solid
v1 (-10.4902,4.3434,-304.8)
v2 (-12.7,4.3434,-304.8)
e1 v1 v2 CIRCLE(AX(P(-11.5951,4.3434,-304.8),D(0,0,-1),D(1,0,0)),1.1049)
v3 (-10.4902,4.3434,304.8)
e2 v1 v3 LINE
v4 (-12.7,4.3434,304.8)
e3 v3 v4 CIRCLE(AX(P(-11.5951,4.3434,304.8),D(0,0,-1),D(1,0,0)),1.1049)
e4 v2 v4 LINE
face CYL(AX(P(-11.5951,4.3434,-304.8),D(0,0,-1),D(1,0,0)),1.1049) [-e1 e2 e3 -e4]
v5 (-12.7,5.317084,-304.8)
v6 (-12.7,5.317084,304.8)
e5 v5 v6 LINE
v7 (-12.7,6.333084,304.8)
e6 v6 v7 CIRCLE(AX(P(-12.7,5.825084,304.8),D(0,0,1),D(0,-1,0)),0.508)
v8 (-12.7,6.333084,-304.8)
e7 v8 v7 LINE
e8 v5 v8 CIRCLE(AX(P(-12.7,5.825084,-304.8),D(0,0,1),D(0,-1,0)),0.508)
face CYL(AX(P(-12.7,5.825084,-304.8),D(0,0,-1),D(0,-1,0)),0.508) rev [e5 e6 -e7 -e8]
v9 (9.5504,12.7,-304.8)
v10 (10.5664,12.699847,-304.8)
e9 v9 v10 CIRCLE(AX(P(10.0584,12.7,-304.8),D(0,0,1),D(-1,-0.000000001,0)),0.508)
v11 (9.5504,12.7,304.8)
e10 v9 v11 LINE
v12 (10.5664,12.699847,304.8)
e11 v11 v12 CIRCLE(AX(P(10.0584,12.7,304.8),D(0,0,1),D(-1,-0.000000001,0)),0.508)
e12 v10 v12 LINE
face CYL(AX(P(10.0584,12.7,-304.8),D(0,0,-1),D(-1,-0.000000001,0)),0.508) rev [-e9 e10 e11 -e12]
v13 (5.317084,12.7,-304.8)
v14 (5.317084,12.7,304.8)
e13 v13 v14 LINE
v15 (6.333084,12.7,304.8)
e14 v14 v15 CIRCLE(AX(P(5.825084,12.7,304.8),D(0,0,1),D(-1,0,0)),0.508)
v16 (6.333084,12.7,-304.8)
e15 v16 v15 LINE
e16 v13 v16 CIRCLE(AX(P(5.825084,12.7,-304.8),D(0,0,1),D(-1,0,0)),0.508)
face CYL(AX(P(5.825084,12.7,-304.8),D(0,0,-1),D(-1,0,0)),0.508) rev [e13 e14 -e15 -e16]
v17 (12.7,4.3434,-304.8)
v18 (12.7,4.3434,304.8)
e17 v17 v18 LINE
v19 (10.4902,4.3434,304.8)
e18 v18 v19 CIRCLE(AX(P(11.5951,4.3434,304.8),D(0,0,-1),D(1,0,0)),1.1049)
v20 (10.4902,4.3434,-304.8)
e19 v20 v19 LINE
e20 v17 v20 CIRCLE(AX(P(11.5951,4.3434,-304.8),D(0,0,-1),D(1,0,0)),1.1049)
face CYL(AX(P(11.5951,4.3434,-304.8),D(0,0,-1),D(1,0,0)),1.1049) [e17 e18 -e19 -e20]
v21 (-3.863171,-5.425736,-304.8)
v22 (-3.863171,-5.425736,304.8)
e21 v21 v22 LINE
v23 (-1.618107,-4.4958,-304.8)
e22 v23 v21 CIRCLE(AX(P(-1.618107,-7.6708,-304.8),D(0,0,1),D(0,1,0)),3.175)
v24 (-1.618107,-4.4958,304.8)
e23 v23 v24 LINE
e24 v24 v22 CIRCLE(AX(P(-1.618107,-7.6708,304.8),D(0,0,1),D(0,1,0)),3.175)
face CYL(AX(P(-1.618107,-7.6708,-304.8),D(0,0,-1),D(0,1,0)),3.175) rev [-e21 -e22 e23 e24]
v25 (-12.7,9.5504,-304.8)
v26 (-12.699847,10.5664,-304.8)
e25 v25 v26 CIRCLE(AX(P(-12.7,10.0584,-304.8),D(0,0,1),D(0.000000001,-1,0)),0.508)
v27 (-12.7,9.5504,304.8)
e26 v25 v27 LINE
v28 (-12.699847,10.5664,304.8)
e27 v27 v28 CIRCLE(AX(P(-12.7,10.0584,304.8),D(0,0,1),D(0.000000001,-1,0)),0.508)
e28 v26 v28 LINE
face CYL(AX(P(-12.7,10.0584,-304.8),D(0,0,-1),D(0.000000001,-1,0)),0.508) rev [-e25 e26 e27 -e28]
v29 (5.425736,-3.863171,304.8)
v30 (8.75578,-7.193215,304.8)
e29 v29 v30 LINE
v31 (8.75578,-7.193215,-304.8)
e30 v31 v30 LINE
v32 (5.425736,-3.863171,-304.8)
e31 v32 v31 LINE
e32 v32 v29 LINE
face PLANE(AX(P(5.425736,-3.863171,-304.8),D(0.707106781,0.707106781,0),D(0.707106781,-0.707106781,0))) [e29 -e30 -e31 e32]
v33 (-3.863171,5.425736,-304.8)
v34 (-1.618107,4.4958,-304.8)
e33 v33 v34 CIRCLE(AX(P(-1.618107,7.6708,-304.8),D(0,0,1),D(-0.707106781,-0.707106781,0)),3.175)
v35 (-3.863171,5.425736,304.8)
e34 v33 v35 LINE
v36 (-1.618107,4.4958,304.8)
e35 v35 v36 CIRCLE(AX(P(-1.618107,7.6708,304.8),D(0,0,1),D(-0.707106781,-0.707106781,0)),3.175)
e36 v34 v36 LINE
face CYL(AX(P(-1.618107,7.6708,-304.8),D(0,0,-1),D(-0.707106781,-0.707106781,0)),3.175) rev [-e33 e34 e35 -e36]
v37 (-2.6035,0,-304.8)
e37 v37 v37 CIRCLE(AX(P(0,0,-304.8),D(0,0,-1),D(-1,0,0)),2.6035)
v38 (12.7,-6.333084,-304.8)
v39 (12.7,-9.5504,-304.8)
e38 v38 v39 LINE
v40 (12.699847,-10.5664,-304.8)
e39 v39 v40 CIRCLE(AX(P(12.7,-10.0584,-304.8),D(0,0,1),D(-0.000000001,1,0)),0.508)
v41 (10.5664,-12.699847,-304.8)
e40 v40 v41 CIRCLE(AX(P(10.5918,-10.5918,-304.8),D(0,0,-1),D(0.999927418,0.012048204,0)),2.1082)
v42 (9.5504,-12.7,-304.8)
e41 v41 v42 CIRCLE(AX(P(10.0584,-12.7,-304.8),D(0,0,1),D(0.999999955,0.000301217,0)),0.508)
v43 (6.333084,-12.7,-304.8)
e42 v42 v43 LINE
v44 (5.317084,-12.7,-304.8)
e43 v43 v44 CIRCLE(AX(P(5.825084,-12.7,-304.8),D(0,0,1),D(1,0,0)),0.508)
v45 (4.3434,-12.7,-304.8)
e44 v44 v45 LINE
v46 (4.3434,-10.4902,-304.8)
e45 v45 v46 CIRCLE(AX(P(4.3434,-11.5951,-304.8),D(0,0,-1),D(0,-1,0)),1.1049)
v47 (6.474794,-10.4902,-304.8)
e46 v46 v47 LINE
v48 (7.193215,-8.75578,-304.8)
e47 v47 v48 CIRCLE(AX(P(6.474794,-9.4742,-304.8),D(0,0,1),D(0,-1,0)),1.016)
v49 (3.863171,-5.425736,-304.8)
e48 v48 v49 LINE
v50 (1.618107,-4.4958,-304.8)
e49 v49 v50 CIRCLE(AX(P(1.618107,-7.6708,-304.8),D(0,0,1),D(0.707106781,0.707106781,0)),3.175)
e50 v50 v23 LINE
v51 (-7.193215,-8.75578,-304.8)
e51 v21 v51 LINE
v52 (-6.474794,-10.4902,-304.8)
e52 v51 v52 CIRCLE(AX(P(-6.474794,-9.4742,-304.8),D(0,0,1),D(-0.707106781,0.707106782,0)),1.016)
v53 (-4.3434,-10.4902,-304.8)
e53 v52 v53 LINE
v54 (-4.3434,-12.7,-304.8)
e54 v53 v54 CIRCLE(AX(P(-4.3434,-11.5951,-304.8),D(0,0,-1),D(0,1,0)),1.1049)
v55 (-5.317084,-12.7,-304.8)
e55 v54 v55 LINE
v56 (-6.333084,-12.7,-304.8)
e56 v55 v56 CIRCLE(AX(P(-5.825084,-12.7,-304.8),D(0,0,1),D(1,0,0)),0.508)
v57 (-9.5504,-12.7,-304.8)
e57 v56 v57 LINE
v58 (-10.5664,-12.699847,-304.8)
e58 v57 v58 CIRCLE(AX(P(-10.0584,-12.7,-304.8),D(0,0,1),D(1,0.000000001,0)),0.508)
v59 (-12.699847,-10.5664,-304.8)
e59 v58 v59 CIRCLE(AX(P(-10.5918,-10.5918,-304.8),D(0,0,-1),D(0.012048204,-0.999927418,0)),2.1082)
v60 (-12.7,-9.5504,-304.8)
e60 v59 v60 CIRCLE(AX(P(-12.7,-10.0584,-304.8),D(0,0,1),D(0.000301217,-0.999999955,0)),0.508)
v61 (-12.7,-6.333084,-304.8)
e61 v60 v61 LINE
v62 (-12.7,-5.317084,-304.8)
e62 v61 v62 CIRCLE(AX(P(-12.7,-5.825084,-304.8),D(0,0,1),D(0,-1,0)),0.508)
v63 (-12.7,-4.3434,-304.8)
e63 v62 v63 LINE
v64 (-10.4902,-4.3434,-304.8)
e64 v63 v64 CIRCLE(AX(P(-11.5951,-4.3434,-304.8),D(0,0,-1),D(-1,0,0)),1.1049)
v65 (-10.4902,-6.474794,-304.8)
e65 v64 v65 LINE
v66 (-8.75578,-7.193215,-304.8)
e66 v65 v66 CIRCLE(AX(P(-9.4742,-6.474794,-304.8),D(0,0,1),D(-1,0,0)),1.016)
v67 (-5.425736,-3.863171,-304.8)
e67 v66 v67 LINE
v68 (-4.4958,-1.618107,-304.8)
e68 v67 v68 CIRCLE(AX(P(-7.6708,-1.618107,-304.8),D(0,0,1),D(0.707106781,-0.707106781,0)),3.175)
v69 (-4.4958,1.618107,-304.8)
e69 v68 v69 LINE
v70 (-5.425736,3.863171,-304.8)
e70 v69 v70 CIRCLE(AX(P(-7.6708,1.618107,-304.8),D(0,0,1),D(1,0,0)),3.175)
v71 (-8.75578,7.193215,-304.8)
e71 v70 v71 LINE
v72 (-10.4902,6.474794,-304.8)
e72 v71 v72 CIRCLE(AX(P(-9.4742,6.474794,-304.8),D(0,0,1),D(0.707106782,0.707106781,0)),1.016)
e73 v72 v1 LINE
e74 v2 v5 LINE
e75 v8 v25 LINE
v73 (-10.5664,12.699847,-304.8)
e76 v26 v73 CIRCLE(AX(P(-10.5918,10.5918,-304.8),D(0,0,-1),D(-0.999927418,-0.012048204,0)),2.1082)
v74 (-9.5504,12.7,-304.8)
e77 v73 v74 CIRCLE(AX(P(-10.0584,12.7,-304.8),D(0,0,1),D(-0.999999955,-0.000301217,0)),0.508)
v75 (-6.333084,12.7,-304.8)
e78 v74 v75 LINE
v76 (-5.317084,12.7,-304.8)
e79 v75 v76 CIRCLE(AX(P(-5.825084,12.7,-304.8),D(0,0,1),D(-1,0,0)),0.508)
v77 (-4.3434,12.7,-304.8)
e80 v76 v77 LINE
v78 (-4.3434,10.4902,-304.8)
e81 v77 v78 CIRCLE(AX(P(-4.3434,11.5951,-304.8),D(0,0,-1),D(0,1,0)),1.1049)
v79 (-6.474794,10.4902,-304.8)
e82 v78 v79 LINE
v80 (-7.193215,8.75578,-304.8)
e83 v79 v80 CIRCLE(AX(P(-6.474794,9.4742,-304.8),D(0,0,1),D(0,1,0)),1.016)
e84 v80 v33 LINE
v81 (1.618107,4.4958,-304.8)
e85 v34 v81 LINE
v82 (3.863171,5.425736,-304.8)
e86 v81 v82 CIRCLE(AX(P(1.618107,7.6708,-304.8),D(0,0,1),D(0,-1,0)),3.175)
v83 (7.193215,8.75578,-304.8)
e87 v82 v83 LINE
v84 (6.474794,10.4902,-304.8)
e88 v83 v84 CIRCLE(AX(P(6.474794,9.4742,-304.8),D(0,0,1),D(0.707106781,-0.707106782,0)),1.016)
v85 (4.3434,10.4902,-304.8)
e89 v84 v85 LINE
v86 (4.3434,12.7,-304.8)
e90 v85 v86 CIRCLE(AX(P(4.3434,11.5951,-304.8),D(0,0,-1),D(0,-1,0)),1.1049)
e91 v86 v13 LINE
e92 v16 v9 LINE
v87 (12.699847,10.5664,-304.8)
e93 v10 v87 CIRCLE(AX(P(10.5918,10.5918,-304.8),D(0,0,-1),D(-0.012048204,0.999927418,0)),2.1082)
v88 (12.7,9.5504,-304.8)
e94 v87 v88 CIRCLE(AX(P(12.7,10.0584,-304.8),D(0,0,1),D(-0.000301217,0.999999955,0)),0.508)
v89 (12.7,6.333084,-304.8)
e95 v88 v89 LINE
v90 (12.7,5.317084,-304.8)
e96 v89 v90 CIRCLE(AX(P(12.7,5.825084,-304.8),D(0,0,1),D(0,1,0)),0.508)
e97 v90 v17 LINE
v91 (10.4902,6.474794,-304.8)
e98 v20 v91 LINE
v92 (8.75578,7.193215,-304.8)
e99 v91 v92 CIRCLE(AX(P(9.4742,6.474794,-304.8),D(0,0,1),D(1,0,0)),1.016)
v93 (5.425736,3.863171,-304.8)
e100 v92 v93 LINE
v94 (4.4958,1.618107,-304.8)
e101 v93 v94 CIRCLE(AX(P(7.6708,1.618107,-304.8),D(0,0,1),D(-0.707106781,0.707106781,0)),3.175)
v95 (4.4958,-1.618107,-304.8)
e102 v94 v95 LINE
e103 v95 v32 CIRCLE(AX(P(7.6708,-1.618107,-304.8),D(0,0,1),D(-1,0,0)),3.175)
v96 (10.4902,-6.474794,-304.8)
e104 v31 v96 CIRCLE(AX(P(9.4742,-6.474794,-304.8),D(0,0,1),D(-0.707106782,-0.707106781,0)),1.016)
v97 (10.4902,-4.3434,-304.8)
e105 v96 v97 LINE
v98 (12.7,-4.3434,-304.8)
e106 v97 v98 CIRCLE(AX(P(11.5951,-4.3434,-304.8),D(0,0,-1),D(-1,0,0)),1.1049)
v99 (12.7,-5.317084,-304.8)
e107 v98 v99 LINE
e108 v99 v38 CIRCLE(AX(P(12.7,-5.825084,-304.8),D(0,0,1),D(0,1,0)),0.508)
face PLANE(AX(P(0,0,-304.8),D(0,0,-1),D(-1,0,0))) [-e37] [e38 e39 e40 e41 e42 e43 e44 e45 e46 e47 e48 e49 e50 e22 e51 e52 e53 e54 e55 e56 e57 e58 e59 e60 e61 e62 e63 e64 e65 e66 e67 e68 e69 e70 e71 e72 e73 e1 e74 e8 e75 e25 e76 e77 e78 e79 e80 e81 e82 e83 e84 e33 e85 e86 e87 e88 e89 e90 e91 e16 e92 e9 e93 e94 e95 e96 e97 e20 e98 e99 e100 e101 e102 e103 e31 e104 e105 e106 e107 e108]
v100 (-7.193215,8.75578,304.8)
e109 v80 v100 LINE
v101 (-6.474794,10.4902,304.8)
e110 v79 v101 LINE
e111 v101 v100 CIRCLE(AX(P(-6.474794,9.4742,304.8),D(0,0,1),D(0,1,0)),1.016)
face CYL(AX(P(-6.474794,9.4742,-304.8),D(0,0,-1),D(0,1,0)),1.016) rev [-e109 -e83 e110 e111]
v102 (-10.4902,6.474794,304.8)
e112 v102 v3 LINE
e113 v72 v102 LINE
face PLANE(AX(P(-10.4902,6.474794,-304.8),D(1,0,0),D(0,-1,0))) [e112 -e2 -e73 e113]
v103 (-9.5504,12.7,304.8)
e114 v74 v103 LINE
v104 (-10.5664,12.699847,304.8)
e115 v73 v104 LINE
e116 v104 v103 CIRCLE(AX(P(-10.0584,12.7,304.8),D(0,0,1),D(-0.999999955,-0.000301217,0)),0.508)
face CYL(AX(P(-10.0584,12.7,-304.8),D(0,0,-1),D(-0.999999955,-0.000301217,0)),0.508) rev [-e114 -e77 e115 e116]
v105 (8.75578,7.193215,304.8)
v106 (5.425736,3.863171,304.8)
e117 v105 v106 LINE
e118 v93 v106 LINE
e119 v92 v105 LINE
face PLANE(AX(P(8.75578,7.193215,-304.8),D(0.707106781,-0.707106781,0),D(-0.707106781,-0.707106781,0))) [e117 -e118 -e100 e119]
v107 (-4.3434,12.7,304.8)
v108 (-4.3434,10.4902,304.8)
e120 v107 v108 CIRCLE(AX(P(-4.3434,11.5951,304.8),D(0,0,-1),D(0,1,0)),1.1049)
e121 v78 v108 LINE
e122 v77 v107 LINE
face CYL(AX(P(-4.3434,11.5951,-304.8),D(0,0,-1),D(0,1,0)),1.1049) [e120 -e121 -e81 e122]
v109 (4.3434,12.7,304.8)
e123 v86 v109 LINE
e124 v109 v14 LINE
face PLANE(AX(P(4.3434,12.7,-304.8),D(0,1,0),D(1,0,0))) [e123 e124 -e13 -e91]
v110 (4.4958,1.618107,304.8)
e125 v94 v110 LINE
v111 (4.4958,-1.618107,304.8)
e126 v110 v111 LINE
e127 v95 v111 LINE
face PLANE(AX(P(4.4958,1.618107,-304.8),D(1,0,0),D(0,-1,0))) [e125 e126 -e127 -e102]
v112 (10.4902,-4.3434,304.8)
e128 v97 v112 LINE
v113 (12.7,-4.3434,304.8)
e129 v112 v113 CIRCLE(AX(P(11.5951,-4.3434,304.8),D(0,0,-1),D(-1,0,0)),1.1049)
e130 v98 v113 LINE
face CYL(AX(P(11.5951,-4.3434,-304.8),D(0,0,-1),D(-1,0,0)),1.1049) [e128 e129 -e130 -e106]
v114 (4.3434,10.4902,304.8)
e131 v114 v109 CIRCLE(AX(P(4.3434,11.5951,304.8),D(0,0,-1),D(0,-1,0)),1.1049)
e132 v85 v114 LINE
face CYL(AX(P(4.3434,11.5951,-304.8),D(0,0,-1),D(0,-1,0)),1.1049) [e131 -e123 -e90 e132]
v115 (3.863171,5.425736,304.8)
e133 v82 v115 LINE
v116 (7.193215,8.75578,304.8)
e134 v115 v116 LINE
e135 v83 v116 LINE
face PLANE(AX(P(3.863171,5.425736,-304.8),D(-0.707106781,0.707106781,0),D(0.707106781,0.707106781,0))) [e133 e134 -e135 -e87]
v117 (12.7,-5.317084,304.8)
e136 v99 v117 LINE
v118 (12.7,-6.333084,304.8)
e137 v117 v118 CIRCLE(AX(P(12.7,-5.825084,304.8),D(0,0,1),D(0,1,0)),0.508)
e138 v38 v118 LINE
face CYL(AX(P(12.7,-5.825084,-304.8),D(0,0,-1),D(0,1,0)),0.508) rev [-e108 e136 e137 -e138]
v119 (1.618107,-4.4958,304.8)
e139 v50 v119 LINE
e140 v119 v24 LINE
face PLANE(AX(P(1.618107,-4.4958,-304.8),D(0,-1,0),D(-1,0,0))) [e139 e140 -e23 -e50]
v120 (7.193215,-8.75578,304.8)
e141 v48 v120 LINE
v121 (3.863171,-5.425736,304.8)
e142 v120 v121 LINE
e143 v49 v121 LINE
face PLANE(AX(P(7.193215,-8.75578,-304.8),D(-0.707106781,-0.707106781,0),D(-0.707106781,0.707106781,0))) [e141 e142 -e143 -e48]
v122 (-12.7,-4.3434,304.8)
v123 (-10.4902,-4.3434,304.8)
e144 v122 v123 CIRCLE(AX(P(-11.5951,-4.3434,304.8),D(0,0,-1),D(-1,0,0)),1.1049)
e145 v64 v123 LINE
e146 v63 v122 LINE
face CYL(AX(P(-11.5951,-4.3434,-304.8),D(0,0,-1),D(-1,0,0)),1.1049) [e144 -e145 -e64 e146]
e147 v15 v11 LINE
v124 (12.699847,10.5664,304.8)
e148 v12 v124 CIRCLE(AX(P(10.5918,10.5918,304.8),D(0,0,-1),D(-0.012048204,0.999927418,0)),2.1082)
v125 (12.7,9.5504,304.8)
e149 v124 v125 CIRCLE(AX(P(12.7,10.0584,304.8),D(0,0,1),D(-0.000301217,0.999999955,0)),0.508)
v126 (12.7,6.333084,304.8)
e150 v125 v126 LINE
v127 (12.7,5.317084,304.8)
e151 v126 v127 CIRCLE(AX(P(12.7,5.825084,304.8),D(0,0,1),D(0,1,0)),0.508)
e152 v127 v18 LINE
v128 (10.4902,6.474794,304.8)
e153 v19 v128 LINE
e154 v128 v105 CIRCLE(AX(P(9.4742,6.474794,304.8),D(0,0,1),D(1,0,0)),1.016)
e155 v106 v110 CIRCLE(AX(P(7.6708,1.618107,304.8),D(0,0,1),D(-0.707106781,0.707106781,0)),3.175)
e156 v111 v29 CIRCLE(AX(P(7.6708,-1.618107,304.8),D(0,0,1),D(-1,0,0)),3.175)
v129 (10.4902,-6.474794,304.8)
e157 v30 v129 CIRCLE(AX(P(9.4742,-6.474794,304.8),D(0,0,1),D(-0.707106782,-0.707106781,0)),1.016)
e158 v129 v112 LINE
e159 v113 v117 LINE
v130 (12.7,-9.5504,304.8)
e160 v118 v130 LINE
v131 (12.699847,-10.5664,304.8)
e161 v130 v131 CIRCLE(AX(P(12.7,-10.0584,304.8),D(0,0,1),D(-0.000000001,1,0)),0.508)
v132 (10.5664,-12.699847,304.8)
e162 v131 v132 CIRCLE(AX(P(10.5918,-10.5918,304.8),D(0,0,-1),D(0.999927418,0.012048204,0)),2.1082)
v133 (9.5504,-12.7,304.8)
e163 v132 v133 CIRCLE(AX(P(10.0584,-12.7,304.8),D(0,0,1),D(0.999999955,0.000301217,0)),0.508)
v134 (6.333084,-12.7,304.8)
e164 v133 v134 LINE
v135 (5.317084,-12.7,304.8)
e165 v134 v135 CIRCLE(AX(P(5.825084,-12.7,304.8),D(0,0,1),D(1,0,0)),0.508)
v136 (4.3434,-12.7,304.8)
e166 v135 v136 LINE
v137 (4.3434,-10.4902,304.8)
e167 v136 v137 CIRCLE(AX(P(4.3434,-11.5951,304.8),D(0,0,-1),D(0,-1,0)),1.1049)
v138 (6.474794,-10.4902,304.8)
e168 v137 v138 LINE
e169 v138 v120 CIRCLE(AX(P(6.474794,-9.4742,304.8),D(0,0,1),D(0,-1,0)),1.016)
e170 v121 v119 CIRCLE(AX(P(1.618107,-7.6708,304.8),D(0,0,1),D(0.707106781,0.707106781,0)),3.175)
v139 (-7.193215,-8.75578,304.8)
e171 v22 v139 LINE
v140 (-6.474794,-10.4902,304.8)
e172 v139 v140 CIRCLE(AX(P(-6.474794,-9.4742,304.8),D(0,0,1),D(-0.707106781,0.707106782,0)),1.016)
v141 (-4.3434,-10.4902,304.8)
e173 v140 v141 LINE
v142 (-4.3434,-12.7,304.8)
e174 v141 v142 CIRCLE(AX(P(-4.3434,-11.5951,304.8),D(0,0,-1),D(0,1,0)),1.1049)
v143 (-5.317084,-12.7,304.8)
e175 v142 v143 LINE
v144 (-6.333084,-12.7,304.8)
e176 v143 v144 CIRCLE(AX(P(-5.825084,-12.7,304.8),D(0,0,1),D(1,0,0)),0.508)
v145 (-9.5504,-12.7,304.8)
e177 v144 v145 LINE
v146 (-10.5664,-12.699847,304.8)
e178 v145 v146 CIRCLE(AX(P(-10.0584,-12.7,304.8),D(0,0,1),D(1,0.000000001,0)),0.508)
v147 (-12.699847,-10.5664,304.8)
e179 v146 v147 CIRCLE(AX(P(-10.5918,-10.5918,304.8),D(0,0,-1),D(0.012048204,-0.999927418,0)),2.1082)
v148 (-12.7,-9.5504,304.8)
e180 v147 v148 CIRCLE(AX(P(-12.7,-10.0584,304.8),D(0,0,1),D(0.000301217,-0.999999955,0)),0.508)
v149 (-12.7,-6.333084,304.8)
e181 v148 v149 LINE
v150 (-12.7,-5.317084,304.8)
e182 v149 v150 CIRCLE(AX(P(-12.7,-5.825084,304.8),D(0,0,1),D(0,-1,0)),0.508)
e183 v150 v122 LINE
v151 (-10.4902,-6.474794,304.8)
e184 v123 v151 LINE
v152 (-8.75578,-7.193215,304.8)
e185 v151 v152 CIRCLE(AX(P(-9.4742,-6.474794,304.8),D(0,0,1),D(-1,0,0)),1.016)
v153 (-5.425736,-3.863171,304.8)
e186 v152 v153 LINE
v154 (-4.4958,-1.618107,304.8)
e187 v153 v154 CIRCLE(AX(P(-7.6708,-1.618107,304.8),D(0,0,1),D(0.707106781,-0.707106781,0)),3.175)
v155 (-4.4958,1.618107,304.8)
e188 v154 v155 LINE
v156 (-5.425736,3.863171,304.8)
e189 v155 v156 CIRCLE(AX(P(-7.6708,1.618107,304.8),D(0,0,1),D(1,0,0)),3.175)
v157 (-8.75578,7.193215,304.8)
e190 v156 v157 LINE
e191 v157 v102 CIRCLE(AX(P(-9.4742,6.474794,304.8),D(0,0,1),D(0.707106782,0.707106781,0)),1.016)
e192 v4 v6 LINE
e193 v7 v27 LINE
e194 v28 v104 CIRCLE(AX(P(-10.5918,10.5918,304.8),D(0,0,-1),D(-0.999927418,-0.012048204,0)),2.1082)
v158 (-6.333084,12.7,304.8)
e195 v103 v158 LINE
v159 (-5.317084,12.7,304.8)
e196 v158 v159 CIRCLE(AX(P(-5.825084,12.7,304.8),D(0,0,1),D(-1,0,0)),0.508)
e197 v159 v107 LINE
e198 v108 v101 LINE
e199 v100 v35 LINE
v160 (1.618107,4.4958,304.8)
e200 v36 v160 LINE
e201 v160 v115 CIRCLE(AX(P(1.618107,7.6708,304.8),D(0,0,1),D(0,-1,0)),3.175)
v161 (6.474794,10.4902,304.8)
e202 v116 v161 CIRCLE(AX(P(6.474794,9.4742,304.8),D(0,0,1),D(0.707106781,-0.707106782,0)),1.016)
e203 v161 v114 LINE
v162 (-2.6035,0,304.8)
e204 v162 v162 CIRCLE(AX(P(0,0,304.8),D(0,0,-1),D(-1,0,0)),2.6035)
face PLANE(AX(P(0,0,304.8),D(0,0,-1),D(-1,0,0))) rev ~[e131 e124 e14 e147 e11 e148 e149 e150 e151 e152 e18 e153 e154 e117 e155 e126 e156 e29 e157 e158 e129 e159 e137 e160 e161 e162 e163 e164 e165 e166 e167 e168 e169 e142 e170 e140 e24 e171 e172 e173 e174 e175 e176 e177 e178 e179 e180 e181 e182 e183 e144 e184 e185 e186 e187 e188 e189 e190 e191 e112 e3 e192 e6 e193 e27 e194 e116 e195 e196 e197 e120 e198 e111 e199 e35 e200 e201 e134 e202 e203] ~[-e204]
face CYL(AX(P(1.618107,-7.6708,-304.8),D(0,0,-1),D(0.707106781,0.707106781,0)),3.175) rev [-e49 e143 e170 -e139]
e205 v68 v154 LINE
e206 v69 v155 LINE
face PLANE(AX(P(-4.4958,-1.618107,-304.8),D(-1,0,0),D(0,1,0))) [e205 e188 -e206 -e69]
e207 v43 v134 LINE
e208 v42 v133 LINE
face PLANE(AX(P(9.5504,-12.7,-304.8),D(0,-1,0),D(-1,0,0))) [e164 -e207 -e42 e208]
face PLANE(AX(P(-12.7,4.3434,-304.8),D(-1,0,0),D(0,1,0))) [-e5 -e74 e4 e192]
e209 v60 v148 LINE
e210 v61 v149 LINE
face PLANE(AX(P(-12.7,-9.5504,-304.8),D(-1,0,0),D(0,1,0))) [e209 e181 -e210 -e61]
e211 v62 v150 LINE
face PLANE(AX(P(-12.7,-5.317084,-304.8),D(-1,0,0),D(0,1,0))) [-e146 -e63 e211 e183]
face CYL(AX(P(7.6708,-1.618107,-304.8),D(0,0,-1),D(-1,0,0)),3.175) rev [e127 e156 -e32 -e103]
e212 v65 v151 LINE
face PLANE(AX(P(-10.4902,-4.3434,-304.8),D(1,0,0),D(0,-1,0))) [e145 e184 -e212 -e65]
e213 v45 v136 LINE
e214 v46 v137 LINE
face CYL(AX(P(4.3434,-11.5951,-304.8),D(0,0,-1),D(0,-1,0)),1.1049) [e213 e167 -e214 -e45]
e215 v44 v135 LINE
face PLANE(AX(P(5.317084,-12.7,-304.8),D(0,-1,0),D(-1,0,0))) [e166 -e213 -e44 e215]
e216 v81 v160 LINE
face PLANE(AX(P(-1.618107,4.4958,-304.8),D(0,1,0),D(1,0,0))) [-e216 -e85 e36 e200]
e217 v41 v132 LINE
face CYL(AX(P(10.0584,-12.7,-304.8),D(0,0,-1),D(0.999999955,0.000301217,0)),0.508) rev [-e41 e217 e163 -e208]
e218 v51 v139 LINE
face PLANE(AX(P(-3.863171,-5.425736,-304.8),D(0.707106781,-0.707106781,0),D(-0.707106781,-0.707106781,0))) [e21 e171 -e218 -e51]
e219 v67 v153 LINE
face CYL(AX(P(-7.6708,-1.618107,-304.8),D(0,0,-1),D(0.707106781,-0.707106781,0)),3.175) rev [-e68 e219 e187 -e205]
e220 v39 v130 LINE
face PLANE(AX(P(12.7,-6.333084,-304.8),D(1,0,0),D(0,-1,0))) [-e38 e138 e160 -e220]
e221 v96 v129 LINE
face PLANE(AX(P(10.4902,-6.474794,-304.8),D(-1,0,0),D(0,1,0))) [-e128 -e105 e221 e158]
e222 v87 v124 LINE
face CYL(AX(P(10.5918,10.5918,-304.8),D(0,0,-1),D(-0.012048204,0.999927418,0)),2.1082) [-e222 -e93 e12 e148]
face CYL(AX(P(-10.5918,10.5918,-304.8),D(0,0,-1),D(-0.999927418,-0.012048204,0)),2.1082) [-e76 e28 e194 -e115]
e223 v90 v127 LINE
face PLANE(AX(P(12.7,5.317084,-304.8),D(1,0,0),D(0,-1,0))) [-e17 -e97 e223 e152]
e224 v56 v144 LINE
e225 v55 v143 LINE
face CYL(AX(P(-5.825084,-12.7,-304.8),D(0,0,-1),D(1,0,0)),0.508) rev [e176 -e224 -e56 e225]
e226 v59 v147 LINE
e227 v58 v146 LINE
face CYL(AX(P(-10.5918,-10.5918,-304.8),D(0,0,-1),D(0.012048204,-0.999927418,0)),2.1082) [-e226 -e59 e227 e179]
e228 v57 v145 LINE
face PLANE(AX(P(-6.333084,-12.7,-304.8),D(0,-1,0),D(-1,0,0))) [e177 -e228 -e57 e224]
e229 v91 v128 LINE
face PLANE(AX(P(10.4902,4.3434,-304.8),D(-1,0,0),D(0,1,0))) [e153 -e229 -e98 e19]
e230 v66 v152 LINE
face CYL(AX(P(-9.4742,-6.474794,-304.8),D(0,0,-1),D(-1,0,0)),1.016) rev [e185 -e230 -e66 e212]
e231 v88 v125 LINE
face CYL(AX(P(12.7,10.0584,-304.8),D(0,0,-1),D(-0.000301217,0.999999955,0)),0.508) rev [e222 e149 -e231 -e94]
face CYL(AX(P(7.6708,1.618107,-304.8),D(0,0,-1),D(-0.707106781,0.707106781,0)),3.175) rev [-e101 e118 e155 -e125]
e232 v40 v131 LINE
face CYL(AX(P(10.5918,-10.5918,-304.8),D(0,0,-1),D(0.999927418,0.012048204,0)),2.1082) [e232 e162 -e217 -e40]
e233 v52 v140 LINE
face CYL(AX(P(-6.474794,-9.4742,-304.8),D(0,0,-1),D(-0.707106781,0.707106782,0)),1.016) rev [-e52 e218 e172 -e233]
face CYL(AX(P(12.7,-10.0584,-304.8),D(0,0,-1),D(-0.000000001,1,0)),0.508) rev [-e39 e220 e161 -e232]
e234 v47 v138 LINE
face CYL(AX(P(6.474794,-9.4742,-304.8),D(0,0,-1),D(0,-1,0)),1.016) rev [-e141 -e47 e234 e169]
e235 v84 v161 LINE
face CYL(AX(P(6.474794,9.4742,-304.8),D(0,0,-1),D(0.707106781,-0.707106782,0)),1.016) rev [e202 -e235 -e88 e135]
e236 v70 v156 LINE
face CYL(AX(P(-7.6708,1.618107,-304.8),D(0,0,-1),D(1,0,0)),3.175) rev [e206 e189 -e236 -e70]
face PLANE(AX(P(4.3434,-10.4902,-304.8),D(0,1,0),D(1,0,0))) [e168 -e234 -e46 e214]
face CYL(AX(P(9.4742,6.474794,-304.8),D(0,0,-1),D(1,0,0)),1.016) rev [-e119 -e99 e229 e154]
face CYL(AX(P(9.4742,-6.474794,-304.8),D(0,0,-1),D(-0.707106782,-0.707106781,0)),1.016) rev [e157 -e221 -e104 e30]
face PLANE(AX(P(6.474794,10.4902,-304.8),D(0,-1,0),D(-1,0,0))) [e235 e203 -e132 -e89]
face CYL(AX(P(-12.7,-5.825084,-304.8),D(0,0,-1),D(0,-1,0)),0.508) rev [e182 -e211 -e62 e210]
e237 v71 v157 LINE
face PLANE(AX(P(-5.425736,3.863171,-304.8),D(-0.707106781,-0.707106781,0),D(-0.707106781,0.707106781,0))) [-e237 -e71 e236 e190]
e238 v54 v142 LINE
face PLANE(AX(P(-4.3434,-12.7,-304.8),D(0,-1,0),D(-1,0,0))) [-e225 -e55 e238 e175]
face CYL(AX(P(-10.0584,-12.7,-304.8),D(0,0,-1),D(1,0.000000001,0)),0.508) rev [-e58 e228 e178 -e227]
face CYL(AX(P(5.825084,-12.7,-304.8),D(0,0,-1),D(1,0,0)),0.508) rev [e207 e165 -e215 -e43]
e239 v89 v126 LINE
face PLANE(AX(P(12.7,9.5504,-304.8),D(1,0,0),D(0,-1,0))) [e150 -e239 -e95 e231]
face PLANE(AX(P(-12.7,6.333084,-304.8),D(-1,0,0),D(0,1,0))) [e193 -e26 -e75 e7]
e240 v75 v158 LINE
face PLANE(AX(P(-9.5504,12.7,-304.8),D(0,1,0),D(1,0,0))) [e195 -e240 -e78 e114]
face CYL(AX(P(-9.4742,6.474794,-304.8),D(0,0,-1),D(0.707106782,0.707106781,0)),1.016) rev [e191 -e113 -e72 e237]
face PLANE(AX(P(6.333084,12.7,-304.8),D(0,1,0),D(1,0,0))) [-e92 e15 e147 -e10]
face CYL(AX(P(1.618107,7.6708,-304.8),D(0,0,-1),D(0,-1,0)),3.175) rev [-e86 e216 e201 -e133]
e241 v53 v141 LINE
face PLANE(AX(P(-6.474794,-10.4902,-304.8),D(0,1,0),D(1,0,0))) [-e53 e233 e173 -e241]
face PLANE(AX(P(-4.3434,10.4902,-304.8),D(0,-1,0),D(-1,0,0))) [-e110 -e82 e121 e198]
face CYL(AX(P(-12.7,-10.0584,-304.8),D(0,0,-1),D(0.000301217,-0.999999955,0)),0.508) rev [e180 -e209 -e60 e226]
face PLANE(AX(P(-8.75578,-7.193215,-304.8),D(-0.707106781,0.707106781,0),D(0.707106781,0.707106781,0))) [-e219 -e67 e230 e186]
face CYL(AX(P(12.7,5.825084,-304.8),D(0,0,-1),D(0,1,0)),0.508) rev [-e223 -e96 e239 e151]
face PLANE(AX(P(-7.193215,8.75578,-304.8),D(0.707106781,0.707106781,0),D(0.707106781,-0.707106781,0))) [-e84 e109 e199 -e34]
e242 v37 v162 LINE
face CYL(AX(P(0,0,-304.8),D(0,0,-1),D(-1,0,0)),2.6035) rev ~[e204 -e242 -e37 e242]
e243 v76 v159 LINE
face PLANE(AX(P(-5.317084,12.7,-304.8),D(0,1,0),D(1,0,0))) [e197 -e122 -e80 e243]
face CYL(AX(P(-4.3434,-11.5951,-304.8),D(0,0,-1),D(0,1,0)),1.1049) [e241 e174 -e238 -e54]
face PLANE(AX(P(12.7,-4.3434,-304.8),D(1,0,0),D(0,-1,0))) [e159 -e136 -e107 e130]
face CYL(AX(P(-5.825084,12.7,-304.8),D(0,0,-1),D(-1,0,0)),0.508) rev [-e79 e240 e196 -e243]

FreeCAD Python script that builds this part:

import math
import FreeCAD as App
import Part
import Sketcher
Q = App.Units.Quantity

doc = App.newDocument("Part")
body = doc.addObject("PartDesign::Body", "Body")

sketch1 = body.newObject("Sketcher::SketchObject", "Sketch")
sketch1.AttachmentSupport = (doc.getObject("XY_Plane"), [""])
sketch1.MapMode = "FlatFace"
sketch1.AttachmentOffset = App.Placement(App.Vector(0, 0, -12 * 25.4), App.Rotation())
sketch1.addGeometry(Part.LineSegment(App.Vector(-12.7, -9.6, 0), App.Vector(-12.7, -6.3, 0)), False)
sketch1.addGeometry(Part.ArcOfCircle(Part.Circle(App.Vector(-12.7, -5.8, 0), App.Vector(0, 0, 1), 0.5), math.radians(-90), math.radians(90)), False)
sketch1.addGeometry(Part.LineSegment(App.Vector(-12.7, -5.3, 0), App.Vector(-12.7, -4.3, 0)), False)
sketch1.addGeometry(Part.ArcOfCircle(Part.Circle(App.Vector(-11.6, -4.3, 0), App.Vector(0, 0, 1), 1.1), math.radians(0), math.radians(180)), False)
sketch1.addGeometry(Part.LineSegment(App.Vector(-10.5, -4.3, 0), App.Vector(-10.5, -6.5, 0)), False)
sketch1.addGeometry(Part.ArcOfCircle(Part.Circle(App.Vector(-9.5, -6.5, 0), App.Vector(0, 0, 1), 1), math.radians(180), math.radians(315)), False)
sketch1.addGeometry(Part.LineSegment(App.Vector(-8.8, -7.2, 0), App.Vector(-5.4, -3.9, 0)), False)
sketch1.addGeometry(Part.ArcOfCircle(Part.Circle(App.Vector(-7.7, -1.6, 0), App.Vector(0, 0, 1), 3.2), math.radians(-45), math.radians(0)), False)
sketch1.addGeometry(Part.LineSegment(App.Vector(-4.5, -1.6, 0), App.Vector(-4.5, 1.6, 0)), False)
sketch1.addGeometry(Part.ArcOfCircle(Part.Circle(App.Vector(-7.7, 1.6, 0), App.Vector(0, 0, 1), 3.2), math.radians(0), math.radians(45)), False)
sketch1.addGeometry(Part.LineSegment(App.Vector(-5.4, 3.9, 0), App.Vector(-8.8, 7.2, 0)), False)
sketch1.addGeometry(Part.ArcOfCircle(Part.Circle(App.Vector(-9.5, 6.5, 0), App.Vector(0, 0, 1), 1), math.radians(45), math.radians(180)), False)
sketch1.addGeometry(Part.LineSegment(App.Vector(-10.5, 6.5, 0), App.Vector(-10.5, 4.3, 0)), False)
sketch1.addGeometry(Part.ArcOfCircle(Part.Circle(App.Vector(-11.6, 4.3, 0), App.Vector(0, 0, 1), 1.1), math.radians(180), math.radians(360)), False)
sketch1.addGeometry(Part.LineSegment(App.Vector(-12.7, 4.3, 0), App.Vector(-12.7, 5.3, 0)), False)
sketch1.addGeometry(Part.ArcOfCircle(Part.Circle(App.Vector(-12.7, 5.8, 0), App.Vector(0, 0, 1), 0.5), math.radians(-90), math.radians(90)), False)
sketch1.addGeometry(Part.LineSegment(App.Vector(-12.7, 6.3, 0), App.Vector(-12.7, 9.6, 0)), False)
sketch1.addGeometry(Part.ArcOfCircle(Part.Circle(App.Vector(-12.7, 10.1, 0), App.Vector(0, 0, 1), 0.5), math.radians(-90), math.radians(90)), False)
sketch1.addGeometry(Part.ArcOfCircle(Part.Circle(App.Vector(-10.6, 10.6, 0), App.Vector(0, 0, 1), 2.1), math.radians(89), math.radians(181)), False)
sketch1.addGeometry(Part.ArcOfCircle(Part.Circle(App.Vector(-10.1, 12.7, 0), App.Vector(0, 0, 1), 0.5), math.radians(-180), math.radians(0)), False)
sketch1.addGeometry(Part.LineSegment(App.Vector(-9.6, 12.7, 0), App.Vector(-6.3, 12.7, 0)), False)
sketch1.addGeometry(Part.ArcOfCircle(Part.Circle(App.Vector(-5.8, 12.7, 0), App.Vector(0, 0, 1), 0.5), math.radians(180), math.radians(360)), False)
sketch1.addGeometry(Part.LineSegment(App.Vector(-5.3, 12.7, 0), App.Vector(-4.3, 12.7, 0)), False)
sketch1.addGeometry(Part.ArcOfCircle(Part.Circle(App.Vector(-4.3, 11.6, 0), App.Vector(0, 0, 1), 1.1), math.radians(-90), math.radians(90)), False)
sketch1.addGeometry(Part.LineSegment(App.Vector(-4.3, 10.5, 0), App.Vector(-6.5, 10.5, 0)), False)
sketch1.addGeometry(Part.ArcOfCircle(Part.Circle(App.Vector(-6.5, 9.5, 0), App.Vector(0, 0, 1), 1), math.radians(90), math.radians(225)), False)
sketch1.addGeometry(Part.LineSegment(App.Vector(-7.2, 8.8, 0), App.Vector(-3.9, 5.4, 0)), False)
sketch1.addGeometry(Part.ArcOfCircle(Part.Circle(App.Vector(-1.6, 7.7, 0), App.Vector(0, 0, 1), 3.2), math.radians(-135), math.radians(-90)), False)
sketch1.addGeometry(Part.LineSegment(App.Vector(-1.6, 4.5, 0), App.Vector(1.6, 4.5, 0)), False)
sketch1.addGeometry(Part.ArcOfCircle(Part.Circle(App.Vector(1.6, 7.7, 0), App.Vector(0, 0, 1), 3.2), math.radians(-90), math.radians(-45)), False)
sketch1.addGeometry(Part.LineSegment(App.Vector(3.9, 5.4, 0), App.Vector(7.2, 8.8, 0)), False)
sketch1.addGeometry(Part.ArcOfCircle(Part.Circle(App.Vector(6.5, 9.5, 0), App.Vector(0, 0, 1), 1), math.radians(-45), math.radians(90)), False)
sketch1.addGeometry(Part.LineSegment(App.Vector(6.5, 10.5, 0), App.Vector(4.3, 10.5, 0)), False)
sketch1.addGeometry(Part.ArcOfCircle(Part.Circle(App.Vector(4.3, 11.6, 0), App.Vector(0, 0, 1), 1.1), math.radians(90), math.radians(270)), False)
sketch1.addGeometry(Part.LineSegment(App.Vector(4.3, 12.7, 0), App.Vector(5.3, 12.7, 0)), False)
sketch1.addGeometry(Part.ArcOfCircle(Part.Circle(App.Vector(5.8, 12.7, 0), App.Vector(0, 0, 1), 0.5), math.radians(180), math.radians(360)), False)
sketch1.addGeometry(Part.LineSegment(App.Vector(6.3, 12.7, 0), App.Vector(9.6, 12.7, 0)), False)
sketch1.addGeometry(Part.ArcOfCircle(Part.Circle(App.Vector(10.1, 12.7, 0), App.Vector(0, 0, 1), 0.5), math.radians(180), math.radians(360)), False)
sketch1.addGeometry(Part.ArcOfCircle(Part.Circle(App.Vector(10.6, 10.6, 0), App.Vector(0, 0, 1), 2.1), math.radians(-1), math.radians(91)), False)
sketch1.addGeometry(Part.ArcOfCircle(Part.Circle(App.Vector(12.7, 10.1, 0), App.Vector(0, 0, 1), 0.5), math.radians(90), math.radians(270)), False)
sketch1.addGeometry(Part.LineSegment(App.Vector(12.7, 9.6, 0), App.Vector(12.7, 6.3, 0)), False)
sketch1.addGeometry(Part.ArcOfCircle(Part.Circle(App.Vector(12.7, 5.8, 0), App.Vector(0, 0, 1), 0.5), math.radians(90), math.radians(270)), False)
sketch1.addGeometry(Part.LineSegment(App.Vector(12.7, 5.3, 0), App.Vector(12.7, 4.3, 0)), False)
sketch1.addGeometry(Part.ArcOfCircle(Part.Circle(App.Vector(11.6, 4.3, 0), App.Vector(0, 0, 1), 1.1), math.radians(180), math.radians(360)), False)
sketch1.addGeometry(Part.LineSegment(App.Vector(10.5, 4.3, 0), App.Vector(10.5, 6.5, 0)), False)
sketch1.addGeometry(Part.ArcOfCircle(Part.Circle(App.Vector(9.5, 6.5, 0), App.Vector(0, 0, 1), 1), math.radians(0), math.radians(135)), False)
sketch1.addGeometry(Part.LineSegment(App.Vector(8.8, 7.2, 0), App.Vector(5.4, 3.9, 0)), False)
sketch1.addGeometry(Part.ArcOfCircle(Part.Circle(App.Vector(7.7, 1.6, 0), App.Vector(0, 0, 1), 3.2), math.radians(135), math.radians(180)), False)
sketch1.addGeometry(Part.LineSegment(App.Vector(4.5, 1.6, 0), App.Vector(4.5, -1.6, 0)), False)
sketch1.addGeometry(Part.ArcOfCircle(Part.Circle(App.Vector(7.7, -1.6, 0), App.Vector(0, 0, 1), 3.2), math.radians(180), math.radians(225)), False)
sketch1.addGeometry(Part.LineSegment(App.Vector(5.4, -3.9, 0), App.Vector(8.8, -7.2, 0)), False)
sketch1.addGeometry(Part.ArcOfCircle(Part.Circle(App.Vector(9.5, -6.5, 0), App.Vector(0, 0, 1), 1), math.radians(-135), math.radians(0)), False)
sketch1.addGeometry(Part.LineSegment(App.Vector(10.5, -6.5, 0), App.Vector(10.5, -4.3, 0)), False)
sketch1.addGeometry(Part.ArcOfCircle(Part.Circle(App.Vector(11.6, -4.3, 0), App.Vector(0, 0, 1), 1.1), math.radians(0), math.radians(180)), False)
sketch1.addGeometry(Part.LineSegment(App.Vector(12.7, -4.3, 0), App.Vector(12.7, -5.3, 0)), False)
sketch1.addGeometry(Part.ArcOfCircle(Part.Circle(App.Vector(12.7, -5.8, 0), App.Vector(0, 0, 1), 0.5), math.radians(90), math.radians(270)), False)
sketch1.addGeometry(Part.LineSegment(App.Vector(12.7, -6.3, 0), App.Vector(12.7, -9.6, 0)), False)
sketch1.addGeometry(Part.ArcOfCircle(Part.Circle(App.Vector(12.7, -10.1, 0), App.Vector(0, 0, 1), 0.5), math.radians(90), math.radians(270)), False)
sketch1.addGeometry(Part.ArcOfCircle(Part.Circle(App.Vector(10.6, -10.6, 0), App.Vector(0, 0, 1), 2.1), math.radians(-91), math.radians(1)), False)
sketch1.addGeometry(Part.ArcOfCircle(Part.Circle(App.Vector(10.1, -12.7, 0), App.Vector(0, 0, 1), 0.5), math.radians(0), math.radians(180)), False)
sketch1.addGeometry(Part.LineSegment(App.Vector(9.6, -12.7, 0), App.Vector(6.3, -12.7, 0)), False)
sketch1.addGeometry(Part.ArcOfCircle(Part.Circle(App.Vector(5.8, -12.7, 0), App.Vector(0, 0, 1), 0.5), math.radians(0), math.radians(180)), False)
sketch1.addGeometry(Part.LineSegment(App.Vector(5.3, -12.7, 0), App.Vector(4.3, -12.7, 0)), False)
sketch1.addGeometry(Part.ArcOfCircle(Part.Circle(App.Vector(4.3, -11.6, 0), App.Vector(0, 0, 1), 1.1), math.radians(90), math.radians(270)), False)
sketch1.addGeometry(Part.LineSegment(App.Vector(4.3, -10.5, 0), App.Vector(6.5, -10.5, 0)), False)
sketch1.addGeometry(Part.ArcOfCircle(Part.Circle(App.Vector(6.5, -9.5, 0), App.Vector(0, 0, 1), 1), math.radians(-90), math.radians(45)), False)
sketch1.addGeometry(Part.LineSegment(App.Vector(7.2, -8.8, 0), App.Vector(3.9, -5.4, 0)), False)
sketch1.addGeometry(Part.ArcOfCircle(Part.Circle(App.Vector(1.6, -7.7, 0), App.Vector(0, 0, 1), 3.2), math.radians(45), math.radians(90)), False)
sketch1.addGeometry(Part.LineSegment(App.Vector(1.6, -4.5, 0), App.Vector(-1.6, -4.5, 0)), False)
sketch1.addGeometry(Part.ArcOfCircle(Part.Circle(App.Vector(-1.6, -7.7, 0), App.Vector(0, 0, 1), 3.2), math.radians(90), math.radians(135)), False)
sketch1.addGeometry(Part.LineSegment(App.Vector(-3.9, -5.4, 0), App.Vector(-7.2, -8.8, 0)), False)
sketch1.addGeometry(Part.ArcOfCircle(Part.Circle(App.Vector(-6.5, -9.5, 0), App.Vector(0, 0, 1), 1), math.radians(135), math.radians(270)), False)
sketch1.addGeometry(Part.LineSegment(App.Vector(-6.5, -10.5, 0), App.Vector(-4.3, -10.5, 0)), False)
sketch1.addGeometry(Part.ArcOfCircle(Part.Circle(App.Vector(-4.3, -11.6, 0), App.Vector(0, 0, 1), 1.1), math.radians(-90), math.radians(90)), False)
sketch1.addGeometry(Part.LineSegment(App.Vector(-4.3, -12.7, 0), App.Vector(-5.3, -12.7, 0)), False)
sketch1.addGeometry(Part.ArcOfCircle(Part.Circle(App.Vector(-5.8, -12.7, 0), App.Vector(0, 0, 1), 0.5), math.radians(0), math.radians(180)), False)
sketch1.addGeometry(Part.LineSegment(App.Vector(-6.3, -12.7, 0), App.Vector(-9.6, -12.7, 0)), False)
sketch1.addGeometry(Part.ArcOfCircle(Part.Circle(App.Vector(-10.1, -12.7, 0), App.Vector(0, 0, 1), 0.5), math.radians(0), math.radians(180)), False)
sketch1.addGeometry(Part.ArcOfCircle(Part.Circle(App.Vector(-10.6, -10.6, 0), App.Vector(0, 0, 1), 2.1), math.radians(179), math.radians(271)), False)
sketch1.addGeometry(Part.ArcOfCircle(Part.Circle(App.Vector(-12.7, -10.1, 0), App.Vector(0, 0, 1), 0.5), math.radians(-90), math.radians(90)), False)
sketch1.addGeometry(Part.Circle(App.Vector(0, 0, 0), App.Vector(0, 0, 1), 2.6), False)
sketch1.addConstraint(Sketcher.Constraint("Coincident", 0, 2, 1, 1))
sketch1.addConstraint(Sketcher.Constraint("Coincident", 1, 2, 2, 1))
sketch1.addConstraint(Sketcher.Constraint("Tangent", 2, 2, 3, 2))
sketch1.addConstraint(Sketcher.Constraint("Tangent", 3, 1, 4, 1))
sketch1.addConstraint(Sketcher.Constraint("Tangent", 4, 2, 5, 1))
sketch1.addConstraint(Sketcher.Constraint("Tangent", 5, 2, 6, 1))
sketch1.addConstraint(Sketcher.Constraint("Tangent", 6, 2, 7, 1))
sketch1.addConstraint(Sketcher.Constraint("Tangent", 7, 2, 8, 1))
sketch1.addConstraint(Sketcher.Constraint("Tangent", 8, 2, 9, 1))
sketch1.addConstraint(Sketcher.Constraint("Tangent", 9, 2, 10, 1))
sketch1.addConstraint(Sketcher.Constraint("Tangent", 10, 2, 11, 1))
sketch1.addConstraint(Sketcher.Constraint("Tangent", 11, 2, 12, 1))
sketch1.addConstraint(Sketcher.Constraint("Tangent", 12, 2, 13, 2))
sketch1.addConstraint(Sketcher.Constraint("Tangent", 13, 1, 14, 1))
sketch1.addConstraint(Sketcher.Constraint("Coincident", 14, 2, 15, 1))
sketch1.addConstraint(Sketcher.Constraint("Coincident", 15, 2, 16, 1))
sketch1.addConstraint(Sketcher.Constraint("Coincident", 16, 2, 17, 1))
sketch1.addConstraint(Sketcher.Constraint("Coincident", 17, 2, 18, 2))
sketch1.addConstraint(Sketcher.Constraint("Coincident", 18, 1, 19, 1))
sketch1.addConstraint(Sketcher.Constraint("Coincident", 19, 2, 20, 1))
sketch1.addConstraint(Sketcher.Constraint("Coincident", 20, 2, 21, 1))
sketch1.addConstraint(Sketcher.Constraint("Coincident", 21, 2, 22, 1))
sketch1.addConstraint(Sketcher.Constraint("Tangent", 22, 2, 23, 2))
sketch1.addConstraint(Sketcher.Constraint("Tangent", 23, 1, 24, 1))
sketch1.addConstraint(Sketcher.Constraint("Tangent", 24, 2, 25, 1))
sketch1.addConstraint(Sketcher.Constraint("Tangent", 25, 2, 26, 1))
sketch1.addConstraint(Sketcher.Constraint("Tangent", 26, 2, 27, 1))
sketch1.addConstraint(Sketcher.Constraint("Tangent", 27, 2, 28, 1))
sketch1.addConstraint(Sketcher.Constraint("Tangent", 28, 2, 29, 1))
sketch1.addConstraint(Sketcher.Constraint("Tangent", 29, 2, 30, 1))
sketch1.addConstraint(Sketcher.Constraint("Tangent", 30, 2, 31, 1))
sketch1.addConstraint(Sketcher.Constraint("Tangent", 31, 2, 32, 1))
sketch1.addConstraint(Sketcher.Constraint("Tangent", 32, 2, 33, 2))
sketch1.addConstraint(Sketcher.Constraint("Tangent", 33, 1, 34, 1))
sketch1.addConstraint(Sketcher.Constraint("Coincident", 34, 2, 35, 1))
sketch1.addConstraint(Sketcher.Constraint("Coincident", 35, 2, 36, 1))
sketch1.addConstraint(Sketcher.Constraint("Coincident", 36, 2, 37, 1))
sketch1.addConstraint(Sketcher.Constraint("Coincident", 37, 2, 38, 2))
sketch1.addConstraint(Sketcher.Constraint("Coincident", 38, 1, 39, 1))
sketch1.addConstraint(Sketcher.Constraint("Coincident", 39, 2, 40, 1))
sketch1.addConstraint(Sketcher.Constraint("Coincident", 40, 2, 41, 1))
sketch1.addConstraint(Sketcher.Constraint("Coincident", 41, 2, 42, 1))
sketch1.addConstraint(Sketcher.Constraint("Tangent", 42, 2, 43, 2))
sketch1.addConstraint(Sketcher.Constraint("Tangent", 43, 1, 44, 1))
sketch1.addConstraint(Sketcher.Constraint("Tangent", 44, 2, 45, 1))
sketch1.addConstraint(Sketcher.Constraint("Tangent", 45, 2, 46, 1))
sketch1.addConstraint(Sketcher.Constraint("Tangent", 46, 2, 47, 1))
sketch1.addConstraint(Sketcher.Constraint("Tangent", 47, 2, 48, 1))
sketch1.addConstraint(Sketcher.Constraint("Tangent", 48, 2, 49, 1))
sketch1.addConstraint(Sketcher.Constraint("Tangent", 49, 2, 50, 1))
sketch1.addConstraint(Sketcher.Constraint("Tangent", 50, 2, 51, 1))
sketch1.addConstraint(Sketcher.Constraint("Tangent", 51, 2, 52, 1))
sketch1.addConstraint(Sketcher.Constraint("Tangent", 52, 2, 53, 2))
sketch1.addConstraint(Sketcher.Constraint("Tangent", 53, 1, 54, 1))
sketch1.addConstraint(Sketcher.Constraint("Coincident", 54, 2, 55, 1))
sketch1.addConstraint(Sketcher.Constraint("Coincident", 55, 2, 56, 1))
sketch1.addConstraint(Sketcher.Constraint("Coincident", 56, 2, 57, 1))
sketch1.addConstraint(Sketcher.Constraint("Coincident", 57, 2, 58, 2))
sketch1.addConstraint(Sketcher.Constraint("Coincident", 58, 1, 59, 1))
sketch1.addConstraint(Sketcher.Constraint("Coincident", 59, 2, 60, 1))
sketch1.addConstraint(Sketcher.Constraint("Coincident", 60, 2, 61, 1))
sketch1.addConstraint(Sketcher.Constraint("Coincident", 61, 2, 62, 1))
sketch1.addConstraint(Sketcher.Constraint("Tangent", 62, 2, 63, 2))
sketch1.addConstraint(Sketcher.Constraint("Tangent", 63, 1, 64, 1))
sketch1.addConstraint(Sketcher.Constraint("Tangent", 64, 2, 65, 1))
sketch1.addConstraint(Sketcher.Constraint("Tangent", 65, 2, 66, 1))
sketch1.addConstraint(Sketcher.Constraint("Tangent", 66, 2, 67, 1))
sketch1.addConstraint(Sketcher.Constraint("Tangent", 67, 2, 68, 1))
sketch1.addConstraint(Sketcher.Constraint("Tangent", 68, 2, 69, 1))
sketch1.addConstraint(Sketcher.Constraint("Tangent", 69, 2, 70, 1))
sketch1.addConstraint(Sketcher.Constraint("Tangent", 70, 2, 71, 1))
sketch1.addConstraint(Sketcher.Constraint("Tangent", 71, 2, 72, 1))
sketch1.addConstraint(Sketcher.Constraint("Tangent", 72, 2, 73, 2))
sketch1.addConstraint(Sketcher.Constraint("Tangent", 73, 1, 74, 1))
sketch1.addConstraint(Sketcher.Constraint("Coincident", 74, 2, 75, 1))
sketch1.addConstraint(Sketcher.Constraint("Coincident", 75, 2, 76, 1))
sketch1.addConstraint(Sketcher.Constraint("Coincident", 76, 2, 77, 1))
sketch1.addConstraint(Sketcher.Constraint("Coincident", 77, 2, 78, 2))
sketch1.addConstraint(Sketcher.Constraint("Coincident", 78, 1, 79, 1))
sketch1.addConstraint(Sketcher.Constraint("Coincident", 79, 2, 0, 1))
sketch1.addConstraint(Sketcher.Constraint("Vertical", 0))
sketch1.addConstraint(Sketcher.Constraint("Vertical", 2))
sketch1.addConstraint(Sketcher.Constraint("Vertical", 4))
sketch1.addConstraint(Sketcher.Constraint("Vertical", 8))
sketch1.addConstraint(Sketcher.Constraint("Vertical", 12))
sketch1.addConstraint(Sketcher.Constraint("Vertical", 14))
sketch1.addConstraint(Sketcher.Constraint("Vertical", 16))
sketch1.addConstraint(Sketcher.Constraint("Horizontal", 20))
sketch1.addConstraint(Sketcher.Constraint("Horizontal", 22))
sketch1.addConstraint(Sketcher.Constraint("Horizontal", 24))
sketch1.addConstraint(Sketcher.Constraint("Horizontal", 28))
sketch1.addConstraint(Sketcher.Constraint("Horizontal", 32))
sketch1.addConstraint(Sketcher.Constraint("Horizontal", 34))
sketch1.addConstraint(Sketcher.Constraint("Horizontal", 36))
sketch1.addConstraint(Sketcher.Constraint("Vertical", 40))
sketch1.addConstraint(Sketcher.Constraint("Vertical", 42))
sketch1.addConstraint(Sketcher.Constraint("Vertical", 44))
sketch1.addConstraint(Sketcher.Constraint("Vertical", 48))
sketch1.addConstraint(Sketcher.Constraint("Vertical", 52))
sketch1.addConstraint(Sketcher.Constraint("Vertical", 54))
sketch1.addConstraint(Sketcher.Constraint("Vertical", 56))
sketch1.addConstraint(Sketcher.Constraint("Horizontal", 60))
sketch1.addConstraint(Sketcher.Constraint("Horizontal", 62))
sketch1.addConstraint(Sketcher.Constraint("Horizontal", 64))
sketch1.addConstraint(Sketcher.Constraint("Horizontal", 68))
sketch1.addConstraint(Sketcher.Constraint("Horizontal", 72))
sketch1.addConstraint(Sketcher.Constraint("Horizontal", 74))
sketch1.addConstraint(Sketcher.Constraint("Horizontal", 76))
sketch1.addConstraint(Sketcher.Constraint("Coincident", 80, 3, -1, 1))
sketch1.addConstraint(Sketcher.Constraint("Equal", 7, 9))
sketch1.addConstraint(Sketcher.Constraint("Equal", 5, 11))
sketch1.addConstraint(Sketcher.Constraint("Equal", 3, 13))
sketch1.addConstraint(Sketcher.Constraint("Equal", 1, 15))
sketch1.addConstraint(Sketcher.Constraint("Equal", 15, 17))
sketch1.addConstraint(Sketcher.Constraint("Equal", 17, 19))
sketch1.addConstraint(Sketcher.Constraint("Equal", 19, 21))
sketch1.addConstraint(Sketcher.Constraint("Equal", 13, 23))
sketch1.addConstraint(Sketcher.Constraint("Equal", 11, 25))
sketch1.addConstraint(Sketcher.Constraint("Equal", 9, 27))
sketch1.addConstraint(Sketcher.Constraint("Equal", 27, 29))
sketch1.addConstraint(Sketcher.Constraint("Equal", 25, 31))
sketch1.addConstraint(Sketcher.Constraint("Equal", 23, 33))
sketch1.addConstraint(Sketcher.Constraint("Equal", 21, 35))
sketch1.addConstraint(Sketcher.Constraint("Equal", 35, 37))
sketch1.addConstraint(Sketcher.Constraint("Equal", 18, 38))
sketch1.addConstraint(Sketcher.Constraint("Equal", 37, 39))
sketch1.addConstraint(Sketcher.Constraint("Equal", 39, 41))
sketch1.addConstraint(Sketcher.Constraint("Equal", 33, 43))
sketch1.addConstraint(Sketcher.Constraint("Equal", 31, 45))
sketch1.addConstraint(Sketcher.Constraint("Equal", 29, 47))
sketch1.addConstraint(Sketcher.Constraint("Equal", 47, 49))
sketch1.addConstraint(Sketcher.Constraint("Equal", 45, 51))
sketch1.addConstraint(Sketcher.Constraint("Equal", 43, 53))
sketch1.addConstraint(Sketcher.Constraint("Equal", 41, 55))
sketch1.addConstraint(Sketcher.Constraint("Equal", 55, 57))
sketch1.addConstraint(Sketcher.Constraint("Equal", 38, 58))
sketch1.addConstraint(Sketcher.Constraint("Equal", 57, 59))
sketch1.addConstraint(Sketcher.Constraint("Equal", 59, 61))
sketch1.addConstraint(Sketcher.Constraint("Equal", 53, 63))
sketch1.addConstraint(Sketcher.Constraint("Equal", 51, 65))
sketch1.addConstraint(Sketcher.Constraint("Equal", 49, 67))
sketch1.addConstraint(Sketcher.Constraint("Equal", 67, 69))
sketch1.addConstraint(Sketcher.Constraint("Equal", 65, 71))
sketch1.addConstraint(Sketcher.Constraint("Equal", 63, 73))
sketch1.addConstraint(Sketcher.Constraint("Equal", 61, 75))
sketch1.addConstraint(Sketcher.Constraint("Equal", 75, 77))
sketch1.addConstraint(Sketcher.Constraint("Equal", 58, 78))
sketch1.addConstraint(Sketcher.Constraint("Equal", 77, 79))
sketch1.addConstraint(Sketcher.Constraint("Symmetric", 1, 3, 41, 3, -1, 1))
sketch1.addConstraint(Sketcher.Constraint("Symmetric", 3, 3, 43, 3, -1, 1))
sketch1.addConstraint(Sketcher.Constraint("Symmetric", 7, 3, 47, 3, -1, 1))
sketch1.addConstraint(Sketcher.Constraint("Symmetric", 11, 3, 51, 3, -1, 1))
sketch1.addConstraint(Sketcher.Constraint("Symmetric", 15, 3, 55, 3, -1, 1))
sketch1.addConstraint(Sketcher.Constraint("Symmetric", 17, 3, 57, 3, -1, 1))
sketch1.addConstraint(Sketcher.Constraint("Symmetric", 18, 3, 58, 3, -1, 1))
sketch1.addConstraint(Sketcher.Constraint("Symmetric", 19, 3, 59, 3, -1, 1))
sketch1.addConstraint(Sketcher.Constraint("Symmetric", 21, 3, 61, 3, -1, 1))
sketch1.addConstraint(Sketcher.Constraint("Symmetric", 23, 3, 63, 3, -1, 1))
sketch1.addConstraint(Sketcher.Constraint("Symmetric", 27, 3, 67, 3, -1, 1))
sketch1.addConstraint(Sketcher.Constraint("Symmetric", 31, 3, 71, 3, -1, 1))
sketch1.addConstraint(Sketcher.Constraint("Symmetric", 35, 3, 75, 3, -1, 1))
sketch1.addConstraint(Sketcher.Constraint("Symmetric", 37, 3, 77, 3, -1, 1))
sketch1.addConstraint(Sketcher.Constraint("Symmetric", 38, 3, 78, 3, -1, 1))
sketch1.addConstraint(Sketcher.Constraint("Symmetric", 39, 3, 79, 3, -1, 1))
sketch1.addConstraint(Sketcher.Constraint("Symmetric", 25, 3, 31, 3, -2))
sketch1.addConstraint(Sketcher.Constraint("Symmetric", 21, 3, 35, 3, -2))
sketch1.addConstraint(Sketcher.Constraint("Symmetric", 19, 3, 37, 3, -2))
sketch1.addConstraint(Sketcher.Constraint("Symmetric", 18, 3, 38, 3, -2))
sketch1.addConstraint(Sketcher.Constraint("Symmetric", 17, 3, 39, 3, -2))
sketch1.addConstraint(Sketcher.Constraint("Symmetric", 15, 3, 41, 3, -2))
sketch1.addConstraint(Sketcher.Constraint("Symmetric", 13, 3, 43, 3, -2))
sketch1.addConstraint(Sketcher.Constraint("Symmetric", 10, 2, 45, 2, -2))
sketch1.addConstraint(Sketcher.Constraint("Symmetric", 6, 2, 49, 2, -2))
sketch1.addConstraint(Sketcher.Constraint("Symmetric", 66, 2, 69, 2, -2))
sketch1.addConstraint(Sketcher.Constraint("Perpendicular", 6, 10))
sketch1.addConstraint(Sketcher.Constraint("Parallel", 10, 26))
sketch1.addConstraint(Sketcher.Constraint("Perpendicular", 26, 30))
sketch1.addConstraint(Sketcher.Constraint("Horizontal", 19, 3, 21, 3))
sketch1.addConstraint(Sketcher.Constraint("Horizontal", 3, 3, 53, 3))
sketch1.addConstraint(Sketcher.Constraint("Horizontal", 37, 3, 19, 2))
sketch1.addConstraint(Sketcher.Constraint("Horizontal", 20, 2, 21, 2))
sketch1.addConstraint(Sketcher.Constraint("Horizontal", 34, 2, 35, 2))
sketch1.addConstraint(Sketcher.Constraint("Horizontal", 77, 3, 59, 2))
sketch1.addConstraint(Sketcher.Constraint("Horizontal", 74, 2, 75, 2))
sketch1.addConstraint(Sketcher.Constraint("Vertical", 15, 3, 17, 3))
sketch1.addConstraint(Sketcher.Constraint("Vertical", 33, 3, 63, 3))
sketch1.addConstraint(Sketcher.Constraint("Vertical", 23, 3, 73, 3))
sketch1.addConstraint(Sketcher.Constraint("Vertical", 79, 3, 0, 2))
sketch1.addConstraint(Sketcher.Constraint("Vertical", 0, 2, 1, 2))
sketch1.addConstraint(Sketcher.Constraint("Vertical", 14, 2, 15, 2))
sketch1.addConstraint(Sketcher.Constraint("Vertical", 57, 3, 39, 2))
sketch1.addConstraint(Sketcher.Constraint("Vertical", 54, 2, 55, 2))
sketch1.addConstraint(Sketcher.Constraint("Equal", 76, 0))
sketch1.addConstraint(Sketcher.Constraint("Equal", 74, 2))
sketch1.addConstraint(Sketcher.Constraint("Equal", 72, 4))
sketch1.addConstraint(Sketcher.Constraint("Equal", 68, 8))
sketch1.addConstraint(Sketcher.Constraint("Equal", 10, 26))
sketch1.addConstraint(Sketcher.Constraint("Radius", 1, Q("0.02 in")))
sketch1.addConstraint(Sketcher.Constraint("Radius", 5, Q("0.04 in")))
sketch1.addConstraint(Sketcher.Constraint("Diameter", 80, Q("0.205 in")))
sketch1.addConstraint(Sketcher.Constraint("Radius", 7, Q("0.125 in")))
sketch1.addConstraint(Sketcher.Constraint("Radius", 18, Q("0.083 in")))
sketch1.addConstraint(Sketcher.Constraint("DistanceX", 1, 3, -1, 1, Q("0.5 in")))
sketch1.addConstraint(Sketcher.Constraint("DistanceY", -1, 1, 19, 3, Q("0.5 in")))
sketch1.addConstraint(Sketcher.Constraint("Radius", 3, Q("0.0435 in")))
sketch1.addConstraint(Sketcher.Constraint("DistanceY", 3, 3, -1, 1, Q("0.171 in")))
sketch1.addConstraint(Sketcher.Constraint("DistanceX", 7, 3, -1, 1, Q("0.302 in")))
sketch1.addConstraint(Sketcher.Constraint("DistanceY", -1, 1, 17, 3, Q("0.396 in")))
sketch1.addConstraint(Sketcher.Constraint("DistanceX", 18, 3, -1, 1, Q("0.417 in")))
sketch1.addConstraint(Sketcher.Constraint("DistanceY", -1, 1, 18, 3, Q("0.417 in")))
sketch1.addConstraint(Sketcher.Constraint("DistanceX", 20, 1, 20, 2, 3.217316))
sketch1.addConstraint(Sketcher.Constraint("DistanceX", 24, 2, 24, 1, 2.131394))
pad1 = body.newObject("PartDesign::Pad", "Pad")
pad1.Profile = sketch1
pad1.Length = Q("24 in")

doc.recompute()
